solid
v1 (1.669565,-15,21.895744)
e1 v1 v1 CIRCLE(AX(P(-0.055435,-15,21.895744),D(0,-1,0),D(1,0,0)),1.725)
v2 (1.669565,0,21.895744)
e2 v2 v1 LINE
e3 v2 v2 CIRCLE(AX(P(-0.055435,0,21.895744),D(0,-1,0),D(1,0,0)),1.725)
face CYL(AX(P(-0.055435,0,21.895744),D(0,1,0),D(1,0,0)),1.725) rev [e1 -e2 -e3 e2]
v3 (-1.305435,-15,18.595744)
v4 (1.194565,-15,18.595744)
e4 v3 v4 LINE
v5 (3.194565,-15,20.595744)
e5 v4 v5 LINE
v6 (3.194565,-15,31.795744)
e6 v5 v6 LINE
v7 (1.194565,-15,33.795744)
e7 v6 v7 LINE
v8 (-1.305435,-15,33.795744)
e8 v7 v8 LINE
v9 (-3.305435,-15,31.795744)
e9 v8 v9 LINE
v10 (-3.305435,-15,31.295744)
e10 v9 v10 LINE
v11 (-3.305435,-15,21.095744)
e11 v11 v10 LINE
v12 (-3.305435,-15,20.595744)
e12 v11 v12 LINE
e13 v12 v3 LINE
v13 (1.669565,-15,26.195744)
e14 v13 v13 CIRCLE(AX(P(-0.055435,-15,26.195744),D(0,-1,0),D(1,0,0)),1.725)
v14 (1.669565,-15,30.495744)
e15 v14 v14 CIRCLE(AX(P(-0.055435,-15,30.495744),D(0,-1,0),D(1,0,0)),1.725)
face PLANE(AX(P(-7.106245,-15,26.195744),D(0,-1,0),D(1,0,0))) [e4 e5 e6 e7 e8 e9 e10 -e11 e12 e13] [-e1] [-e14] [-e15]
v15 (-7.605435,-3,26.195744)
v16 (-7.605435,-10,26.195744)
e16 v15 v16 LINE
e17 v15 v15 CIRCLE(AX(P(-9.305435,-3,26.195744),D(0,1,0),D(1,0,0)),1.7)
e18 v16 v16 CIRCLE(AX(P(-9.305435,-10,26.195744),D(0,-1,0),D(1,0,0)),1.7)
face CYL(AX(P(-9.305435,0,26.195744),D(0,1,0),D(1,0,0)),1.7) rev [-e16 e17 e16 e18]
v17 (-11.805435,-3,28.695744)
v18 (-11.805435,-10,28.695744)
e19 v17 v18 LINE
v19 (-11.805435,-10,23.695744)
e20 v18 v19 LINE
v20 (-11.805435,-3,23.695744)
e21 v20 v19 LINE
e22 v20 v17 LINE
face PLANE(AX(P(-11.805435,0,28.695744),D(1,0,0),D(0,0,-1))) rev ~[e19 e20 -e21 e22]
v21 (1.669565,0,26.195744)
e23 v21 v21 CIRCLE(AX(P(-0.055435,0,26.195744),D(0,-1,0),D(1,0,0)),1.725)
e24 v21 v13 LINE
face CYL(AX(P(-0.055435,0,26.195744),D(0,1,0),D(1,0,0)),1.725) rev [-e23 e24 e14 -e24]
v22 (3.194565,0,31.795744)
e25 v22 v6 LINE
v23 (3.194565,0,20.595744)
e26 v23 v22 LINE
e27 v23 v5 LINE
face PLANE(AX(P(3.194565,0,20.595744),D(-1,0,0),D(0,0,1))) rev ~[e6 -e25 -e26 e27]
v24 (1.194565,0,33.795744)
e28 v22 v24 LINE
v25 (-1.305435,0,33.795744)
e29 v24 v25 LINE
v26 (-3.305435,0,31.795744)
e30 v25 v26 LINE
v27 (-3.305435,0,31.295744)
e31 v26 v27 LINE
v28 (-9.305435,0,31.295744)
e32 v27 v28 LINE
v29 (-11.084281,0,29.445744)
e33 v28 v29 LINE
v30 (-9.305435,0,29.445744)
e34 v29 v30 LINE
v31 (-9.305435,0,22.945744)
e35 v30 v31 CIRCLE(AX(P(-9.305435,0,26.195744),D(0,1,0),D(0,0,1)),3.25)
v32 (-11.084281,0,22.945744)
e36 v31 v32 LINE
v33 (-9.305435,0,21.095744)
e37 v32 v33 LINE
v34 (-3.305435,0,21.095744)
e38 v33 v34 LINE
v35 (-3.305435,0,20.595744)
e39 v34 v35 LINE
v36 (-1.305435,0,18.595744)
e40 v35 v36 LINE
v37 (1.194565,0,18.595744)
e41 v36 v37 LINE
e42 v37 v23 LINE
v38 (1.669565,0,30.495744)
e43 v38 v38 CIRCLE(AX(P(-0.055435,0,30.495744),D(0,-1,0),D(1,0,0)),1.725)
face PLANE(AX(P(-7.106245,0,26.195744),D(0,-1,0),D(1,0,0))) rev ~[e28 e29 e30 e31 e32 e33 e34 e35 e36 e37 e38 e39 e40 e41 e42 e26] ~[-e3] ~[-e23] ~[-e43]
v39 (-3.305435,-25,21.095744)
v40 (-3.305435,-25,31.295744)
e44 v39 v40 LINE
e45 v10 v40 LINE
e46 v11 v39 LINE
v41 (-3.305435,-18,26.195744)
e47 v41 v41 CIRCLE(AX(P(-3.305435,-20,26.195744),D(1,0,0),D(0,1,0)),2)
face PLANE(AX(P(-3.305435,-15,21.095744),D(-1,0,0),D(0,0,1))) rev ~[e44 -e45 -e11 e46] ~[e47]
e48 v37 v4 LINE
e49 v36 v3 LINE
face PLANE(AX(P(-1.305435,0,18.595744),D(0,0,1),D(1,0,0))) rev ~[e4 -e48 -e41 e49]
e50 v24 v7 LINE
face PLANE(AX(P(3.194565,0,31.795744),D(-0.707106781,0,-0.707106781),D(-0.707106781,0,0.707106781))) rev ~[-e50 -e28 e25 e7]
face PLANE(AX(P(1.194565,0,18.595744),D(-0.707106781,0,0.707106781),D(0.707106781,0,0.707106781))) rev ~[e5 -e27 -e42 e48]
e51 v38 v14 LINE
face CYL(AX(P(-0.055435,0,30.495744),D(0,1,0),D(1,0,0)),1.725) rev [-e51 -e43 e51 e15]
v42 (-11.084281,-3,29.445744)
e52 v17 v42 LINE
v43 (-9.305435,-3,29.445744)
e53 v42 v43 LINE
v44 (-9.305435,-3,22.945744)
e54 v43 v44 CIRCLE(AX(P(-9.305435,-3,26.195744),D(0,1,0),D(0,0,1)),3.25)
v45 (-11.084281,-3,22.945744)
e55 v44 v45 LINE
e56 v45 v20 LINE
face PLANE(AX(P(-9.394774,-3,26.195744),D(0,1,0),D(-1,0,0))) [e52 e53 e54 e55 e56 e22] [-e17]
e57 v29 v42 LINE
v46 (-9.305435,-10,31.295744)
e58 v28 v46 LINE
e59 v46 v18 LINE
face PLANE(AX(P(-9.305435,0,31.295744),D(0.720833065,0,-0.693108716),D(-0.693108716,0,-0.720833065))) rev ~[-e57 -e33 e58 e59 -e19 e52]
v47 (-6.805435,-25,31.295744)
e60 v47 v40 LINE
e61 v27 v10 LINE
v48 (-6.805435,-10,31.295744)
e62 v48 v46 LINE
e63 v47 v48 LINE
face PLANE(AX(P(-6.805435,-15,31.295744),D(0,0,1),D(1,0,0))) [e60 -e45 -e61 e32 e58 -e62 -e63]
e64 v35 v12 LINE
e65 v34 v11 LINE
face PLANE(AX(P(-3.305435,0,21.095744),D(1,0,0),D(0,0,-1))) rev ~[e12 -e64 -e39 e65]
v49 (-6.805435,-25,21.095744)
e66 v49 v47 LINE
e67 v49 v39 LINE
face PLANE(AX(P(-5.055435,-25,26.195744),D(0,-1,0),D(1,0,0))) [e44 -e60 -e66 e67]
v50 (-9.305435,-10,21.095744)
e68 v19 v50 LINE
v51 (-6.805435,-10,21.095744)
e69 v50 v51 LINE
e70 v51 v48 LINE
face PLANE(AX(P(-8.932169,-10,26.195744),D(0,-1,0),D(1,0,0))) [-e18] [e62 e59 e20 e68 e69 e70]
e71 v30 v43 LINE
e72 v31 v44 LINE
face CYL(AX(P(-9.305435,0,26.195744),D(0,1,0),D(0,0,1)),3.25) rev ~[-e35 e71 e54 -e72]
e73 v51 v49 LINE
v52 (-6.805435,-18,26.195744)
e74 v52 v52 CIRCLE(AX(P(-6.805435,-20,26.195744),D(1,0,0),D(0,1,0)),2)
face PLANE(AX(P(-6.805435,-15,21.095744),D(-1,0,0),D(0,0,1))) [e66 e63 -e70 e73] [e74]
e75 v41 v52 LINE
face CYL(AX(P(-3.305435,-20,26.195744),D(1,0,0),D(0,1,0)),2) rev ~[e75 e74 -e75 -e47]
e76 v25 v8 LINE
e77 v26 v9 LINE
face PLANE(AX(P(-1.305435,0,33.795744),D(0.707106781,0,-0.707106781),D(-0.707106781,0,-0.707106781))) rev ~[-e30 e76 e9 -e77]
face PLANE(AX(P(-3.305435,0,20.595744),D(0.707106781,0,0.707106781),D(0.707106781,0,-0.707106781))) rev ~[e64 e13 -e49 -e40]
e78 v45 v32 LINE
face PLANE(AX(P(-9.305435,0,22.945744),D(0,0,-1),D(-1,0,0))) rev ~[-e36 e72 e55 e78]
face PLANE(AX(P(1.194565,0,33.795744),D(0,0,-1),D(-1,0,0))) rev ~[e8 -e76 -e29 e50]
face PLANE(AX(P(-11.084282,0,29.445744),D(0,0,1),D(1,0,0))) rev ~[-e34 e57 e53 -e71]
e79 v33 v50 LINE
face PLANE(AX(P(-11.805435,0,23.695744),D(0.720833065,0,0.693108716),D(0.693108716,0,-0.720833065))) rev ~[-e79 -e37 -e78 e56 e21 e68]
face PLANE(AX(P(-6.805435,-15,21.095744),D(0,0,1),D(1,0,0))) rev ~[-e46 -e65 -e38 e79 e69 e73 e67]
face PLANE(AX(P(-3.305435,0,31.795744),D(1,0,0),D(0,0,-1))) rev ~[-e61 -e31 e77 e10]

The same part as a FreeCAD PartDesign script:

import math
import FreeCAD as App
import Part
import Sketcher
from FreeCAD import Vector
Q = App.Units.Quantity

doc = App.newDocument("Part")
body = doc.addObject("PartDesign::Body", "Body")

sketch1 = body.newObject("Sketcher::SketchObject", "Sketch")
sketch1.AttachmentSupport = (doc.getObject("XZ_Plane"), [""])
sketch1.MapMode = "FlatFace"
sketch1.addGeometry([
    Part.LineSegment(Vector(-9.305435, 21.095744, 0), Vector(-3.305435, 21.095744, 0)),
    Part.LineSegment(Vector(-3.305435, 21.095744, 0), Vector(-3.305435, 20.595744, 0)),
    Part.LineSegment(Vector(-3.305435, 20.595744, 0), Vector(-1.305435, 18.595744, 0)),
    Part.LineSegment(Vector(-1.305435, 18.595744, 0), Vector(1.194565, 18.595744, 0)),
    Part.LineSegment(Vector(1.194565, 18.595744, 0), Vector(3.194565, 20.595744, 0)),
    Part.LineSegment(Vector(3.194565, 20.595744, 0), Vector(3.194565, 31.795744, 0)),
    Part.LineSegment(Vector(3.194565, 31.795744, 0), Vector(1.194565, 33.795744, 0)),
    Part.LineSegment(Vector(1.194565, 33.795744, 0), Vector(-1.305435, 33.795744, 0)),
    Part.LineSegment(Vector(-1.305435, 33.795744, 0), Vector(-3.305435, 31.795744, 0)),
    Part.LineSegment(Vector(-3.305435, 31.795744, 0), Vector(-3.305435, 31.295744, 0)),
    Part.LineSegment(Vector(-3.305435, 31.295744, 0), Vector(-9.305435, 31.295744, 0)),
    Part.LineSegment(Vector(-9.305435, 31.295744, 0), Vector(-11.805435, 28.695744, 0)),
    Part.LineSegment(Vector(-11.805435, 28.695744, 0), Vector(-11.805435, 23.695744, 0)),
    Part.LineSegment(Vector(-11.805435, 23.695744, 0), Vector(-9.305435, 21.095744, 0)),
    Part.Circle(Vector(-0.055435, 21.895744, 0), Vector(0, 0, 1), 1.725),
    Part.Circle(Vector(-9.305435, 26.195744, 0), Vector(0, 0, 1), 1.7),
    Part.Circle(Vector(-0.055435, 26.195744, 0), Vector(0, 0, 1), 1.725),
    Part.Circle(Vector(-0.055435, 30.495744, 0), Vector(0, 0, 1), 1.725),
], False)
sketch1.addConstraint([
    Sketcher.Constraint("Coincident", 0, 2, 1, 1),
    Sketcher.Constraint("Coincident", 1, 2, 2, 1),
    Sketcher.Constraint("Coincident", 2, 2, 3, 1),
    Sketcher.Constraint("Coincident", 3, 2, 4, 1),
    Sketcher.Constraint("Coincident", 4, 2, 5, 1),
    Sketcher.Constraint("Coincident", 5, 2, 6, 1),
    Sketcher.Constraint("Coincident", 6, 2, 7, 1),
    Sketcher.Constraint("Coincident", 7, 2, 8, 1),
    Sketcher.Constraint("Coincident", 8, 2, 9, 1),
    Sketcher.Constraint("Coincident", 9, 2, 10, 1),
    Sketcher.Constraint("Coincident", 10, 2, 11, 1),
    Sketcher.Constraint("Coincident", 11, 2, 12, 1),
    Sketcher.Constraint("Coincident", 12, 2, 13, 1),
    Sketcher.Constraint("Coincident", 13, 2, 0, 1),
    Sketcher.Constraint("Horizontal", 0),
    Sketcher.Constraint("Vertical", 1),
    Sketcher.Constraint("Horizontal", 3),
    Sketcher.Constraint("Vertical", 5),
    Sketcher.Constraint("Horizontal", 7),
    Sketcher.Constraint("Vertical", 9),
    Sketcher.Constraint("Horizontal", 10),
    Sketcher.Constraint("Vertical", 12),
    Sketcher.Constraint("Equal", 14, 16),
    Sketcher.Constraint("Equal", 16, 17),
    Sketcher.Constraint("Perpendicular", 2, 4),
    Sketcher.Constraint("Perpendicular", 4, 6),
    Sketcher.Constraint("Perpendicular", 6, 8),
    Sketcher.Constraint("Horizontal", 15, 3, 16, 3),
    Sketcher.Constraint("Horizontal", 1, 2, 4, 2),
    Sketcher.Constraint("Horizontal", 5, 2, 8, 2),
    Sketcher.Constraint("Vertical", 14, 3, 16, 3),
    Sketcher.Constraint("Vertical", 16, 3, 17, 3),
    Sketcher.Constraint("Vertical", 3, 2, 6, 2),
    Sketcher.Constraint("Vertical", 2, 2, 7, 2),
    Sketcher.Constraint("Vertical", 1, 2, 8, 2),
    Sketcher.Constraint("Vertical", 15, 3, 10, 2),
    Sketcher.Constraint("Vertical", 10, 2, 13, 2),
    Sketcher.Constraint("Equal", 1, 9),
    Sketcher.Constraint("Equal", 11, 13),
    Sketcher.Constraint("Diameter", 15, Q("3.4 mm")),
    Sketcher.Constraint("Diameter", 14, Q("3.45 mm")),
    Sketcher.Constraint("DistanceX", 0, 1, 0, 2, Q("6 mm")),
    Sketcher.Constraint("DistanceY", 12, 2, 12, 1, Q("5 mm")),
    Sketcher.Constraint("DistanceX", 3, 1, 3, 2, Q("2.5 mm")),
    Sketcher.Constraint("DistanceY", 1, 2, 1, 1, Q("0.5 mm")),
    Sketcher.Constraint("DistanceY", 5, 1, 5, 2, Q("11.2 mm")),
    Sketcher.Constraint("DistanceX", 1, 2, 2, 2, Q("2 mm")),
    Sketcher.Constraint("DistanceY", 14, 3, 15, 3, Q("4.3 mm")),
    Sketcher.Constraint("DistanceY", 16, 3, 17, 3, Q("4.3 mm")),
    Sketcher.Constraint("DistanceY", 0, 2, 14, 3, Q("0.8 mm")),
    Sketcher.Constraint("DistanceX", 11, 2, 15, 3, Q("2.5 mm")),
    Sketcher.Constraint("DistanceX", 15, 3, 14, 3, Q("9.25 mm")),
    Sketcher.Constraint("DistanceX", 14, 3, -1, 1, Q("0.055435 mm")),
    Sketcher.Constraint("DistanceY", -1, 1, 14, 3, Q("21.895744 mm")),
])
pad1 = body.newObject("PartDesign::Pad", "Pad")
pad1.Profile = sketch1
pad1.Length = 15

sketch2 = body.newObject("Sketcher::SketchObject", "Sketch001")
sketch2.AttachmentSupport = (doc.getObject("XZ_Plane"), [""])
sketch2.MapMode = "FlatFace"
sketch2.AttachmentOffset = App.Placement(Vector(0, 0, 15), App.Rotation())
sketch2.addGeometry([
    Part.LineSegment(Vector(-6.805435, 31.295744, 0), Vector(-6.805435, 21.095744, 0)),
    Part.LineSegment(Vector(-6.805435, 21.095744, 0), Vector(-3.305435, 21.095744, 0)),
    Part.LineSegment(Vector(-3.305435, 21.095744, 0), Vector(-3.305435, 31.295744, 0)),
    Part.LineSegment(Vector(-3.305435, 31.295744, 0), Vector(-6.805435, 31.295744, 0)),
], False)
sketch2.addConstraint([
    Sketcher.Constraint("Coincident", 0, 2, 1, 1),
    Sketcher.Constraint("Coincident", 1, 2, 2, 1),
    Sketcher.Constraint("Coincident", 2, 2, 3, 1),
    Sketcher.Constraint("Coincident", 3, 2, 0, 1),
    Sketcher.Constraint("Vertical", 0),
    Sketcher.Constraint("Horizontal", 1),
    Sketcher.Constraint("Vertical", 2),
    Sketcher.Constraint("Horizontal", 3),
    Sketcher.Constraint("DistanceX", 1, 1, 1, 2, Q("3.5 mm")),
    Sketcher.Constraint("DistanceY", 0, 2, 0, 1, Q("10.2 mm")),
    Sketcher.Constraint("DistanceX", 0, 2, -1, 1, Q("6.805435 mm")),
    Sketcher.Constraint("DistanceY", -1, 1, 0, 2, Q("21.095744 mm")),
])
pad2 = body.newObject("PartDesign::Pad", "Pad001")
pad2.Profile = sketch2
pad2.Length = 10

sketch3 = body.newObject("Sketcher::SketchObject", "Sketch002")
sketch3.AttachmentSupport = (doc.getObject("XZ_Plane"), [""])
sketch3.MapMode = "FlatFace"
sketch3.AttachmentOffset = App.Placement(Vector(0, 0, 15), App.Rotation())
sketch3.addGeometry([
    Part.LineSegment(Vector(-6.805435, 21.095744, 0), Vector(-6.805435, 31.295744, 0)),
    Part.LineSegment(Vector(-6.805435, 31.295744, 0), Vector(-9.305435, 31.295744, 0)),
    Part.LineSegment(Vector(-9.305435, 31.295744, 0), Vector(-11.805435, 28.695744, 0)),
    Part.LineSegment(Vector(-11.805435, 28.695744, 0), Vector(-11.805435, 23.695744, 0)),
    Part.LineSegment(Vector(-11.805435, 23.695744, 0), Vector(-9.305435, 21.095744, 0)),
    Part.LineSegment(Vector(-9.305435, 21.095744, 0), Vector(-6.805435, 21.095744, 0)),
    Part.Circle(Vector(-9.305435, 26.195744, 0), Vector(0, 0, 1), 1.7),
], False)
sketch3.addConstraint([
    Sketcher.Constraint("Coincident", 0, 2, 1, 1),
    Sketcher.Constraint("Coincident", 1, 2, 2, 1),
    Sketcher.Constraint("Coincident", 2, 2, 3, 1),
    Sketcher.Constraint("Coincident", 3, 2, 4, 1),
    Sketcher.Constraint("Coincident", 4, 2, 5, 1),
    Sketcher.Constraint("Coincident", 5, 2, 0, 1),
    Sketcher.Constraint("Vertical", 0),
    Sketcher.Constraint("Horizontal", 1),
    Sketcher.Constraint("Vertical", 3),
    Sketcher.Constraint("Horizontal", 5),
    Sketcher.Constraint("Vertical", 6, 3, 1, 2),
    Sketcher.Constraint("Vertical", 1, 2, 4, 2),
    Sketcher.Constraint("Equal", 2, 4),
    Sketcher.Constraint("Diameter", 6, Q("3.4 mm")),
    Sketcher.Constraint("DistanceY", 3, 2, 3, 1, Q("5 mm")),
    Sketcher.Constraint("DistanceX", 1, 2, 1, 1, Q("2.5 mm")),
    Sketcher.Constraint("DistanceY", 0, 1, 0, 2, Q("10.2 mm")),
    Sketcher.Constraint("DistanceX", 2, 2, 0, 2, Q("5 mm")),
    Sketcher.Constraint("DistanceY", 6, 3, 0, 2, Q("5.1 mm")),
    Sketcher.Constraint("DistanceX", 6, 3, -1, 1, Q("9.305435 mm")),
    Sketcher.Constraint("DistanceY", -1, 1, 6, 3, Q("26.195744 mm")),
])
pocket1 = body.newObject("PartDesign::Pocket", "Pocket")
pocket1.Profile = sketch3
pocket1.Length = 5

sketch4 = body.newObject("Sketcher::SketchObject", "Sketch003")
sketch4.AttachmentSupport = (doc.getObject("YZ_Plane"), [""])
sketch4.MapMode = "FlatFace"
sketch4.AttachmentOffset = App.Placement(Vector(0, 0, -3.305435), App.Rotation())
sketch4.addGeometry(Part.Circle(Vector(-20, 26.195744, 0), Vector(0, 0, 1), 2), False)
sketch4.addConstraint([
    Sketcher.Constraint("Diameter", 0, Q("4 mm")),
    Sketcher.Constraint("DistanceX", 0, 3, -1, 1, Q("20 mm")),
    Sketcher.Constraint("DistanceY", -1, 1, 0, 3, Q("26.195744 mm")),
])
pocket2 = body.newObject("PartDesign::Pocket", "Pocket001")
pocket2.Profile = sketch4
pocket2.Length = 25

sketch5 = body.newObject("Sketcher::SketchObject", "Sketch004")
sketch5.AttachmentSupport = (doc.getObject("XZ_Plane"), [""])
sketch5.MapMode = "FlatFace"
sketch5.addGeometry([
    Part.LineSegment(Vector(-11.084282, 29.445744, 0), Vector(-9.305435, 29.445744, 0)),
    Part.ArcOfCircle(Part.Circle(Vector(-9.305435, 26.195744, 0), Vector(0, 0, 1), 3.25), math.radians(-90), math.radians(90)),
    Part.LineSegment(Vector(-9.305435, 22.945744, 0), Vector(-11.084282, 22.945744, 0)),
    Part.LineSegment(Vector(-11.084282, 22.945744, 0), Vector(-11.805435, 23.695744, 0)),
    Part.LineSegment(Vector(-11.805435, 23.695744, 0), Vector(-11.805435, 28.695744, 0)),
    Part.LineSegment(Vector(-11.805435, 28.695744, 0), Vector(-11.084282, 29.445744, 0)),
], False)
sketch5.addConstraint([
    Sketcher.Constraint("Tangent", 0, 2, 1, 2),
    Sketcher.Constraint("Tangent", 1, 1, 2, 1),
    Sketcher.Constraint("Coincident", 2, 2, 3, 1),
    Sketcher.Constraint("Coincident", 3, 2, 4, 1),
    Sketcher.Constraint("Coincident", 4, 2, 5, 1),
    Sketcher.Constraint("Coincident", 5, 2, 0, 1),
    Sketcher.Constraint("Horizontal", 0),
    Sketcher.Constraint("Horizontal", 2),
    Sketcher.Constraint("Vertical", 4),
    Sketcher.Constraint("Vertical", 2, 2, 5, 2),
    Sketcher.Constraint("Equal", 3, 5),
    Sketcher.Constraint("DistanceY", 4, 1, 4, 2, Q("5 mm")),
    Sketcher.Constraint("Radius", 1, Q("3.25 mm")),
    Sketcher.Constraint("DistanceX", 3, 2, 1, 1, Q("2.5 mm")),
    Sketcher.Constraint("DistanceX", 0, 1, 0, 2, Q("1.778847 mm")),
    Sketcher.Constraint("DistanceX", 1, 3, -1, 1, Q("9.305435 mm")),
    Sketcher.Constraint("DistanceY", -1, 1, 1, 3, Q("26.195744 mm")),
])
pocket3 = body.newObject("PartDesign::Pocket", "Pocket002")
pocket3.Profile = sketch5
pocket3.Length = 3
pocket3.Reversed = True

doc.recompute()
